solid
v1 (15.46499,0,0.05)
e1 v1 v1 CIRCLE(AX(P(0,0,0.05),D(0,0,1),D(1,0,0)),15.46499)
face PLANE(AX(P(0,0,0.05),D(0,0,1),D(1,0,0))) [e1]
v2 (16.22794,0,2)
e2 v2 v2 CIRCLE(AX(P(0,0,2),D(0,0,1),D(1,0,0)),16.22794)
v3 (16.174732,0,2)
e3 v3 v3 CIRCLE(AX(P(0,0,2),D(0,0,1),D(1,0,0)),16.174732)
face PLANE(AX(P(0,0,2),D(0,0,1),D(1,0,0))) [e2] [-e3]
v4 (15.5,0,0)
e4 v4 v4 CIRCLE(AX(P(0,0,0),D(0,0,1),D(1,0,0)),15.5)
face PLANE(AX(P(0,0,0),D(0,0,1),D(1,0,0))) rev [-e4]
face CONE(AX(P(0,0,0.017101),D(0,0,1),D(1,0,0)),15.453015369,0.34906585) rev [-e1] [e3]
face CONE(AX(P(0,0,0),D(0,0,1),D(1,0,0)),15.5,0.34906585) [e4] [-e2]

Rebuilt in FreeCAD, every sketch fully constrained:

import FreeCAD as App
import Part
import Sketcher
from FreeCAD import Vector


def faces_at(feature, points):
    """Names of the faces that lie closest to the given points."""
    faces = feature.Shape.Faces
    near = lambda p: min(range(len(faces)), key=lambda i: faces[i].distToShape(Part.Vertex(*p))[0])
    return sorted({f"Face{near(p) + 1}" for p in points})

doc = App.newDocument("Part")
body = doc.addObject("PartDesign::Body", "Body")

# Sketch on XY plane
sketch1 = body.newObject("Sketcher::SketchObject", "Sketch")
sketch1.AttachmentSupport = (doc.getObject("XY_Plane"), [""])
sketch1.MapMode = "FlatFace"
sketch1.addGeometry(Part.Circle(Vector(0, 0, 0), Vector(0, 0, 1), 15.5), False)
sketch1.addConstraint(Sketcher.Constraint("Coincident", 0, 3, -1, 1))
sketch1.addConstraint(Sketcher.Constraint("Diameter", 0, 31.0))
pad1 = body.newObject("PartDesign::Pad", "Pad")
pad1.Profile = sketch1
pad1.Length = 2
doc.recompute()

draft = body.newObject("PartDesign::Draft", "Draft")
draft.Base = (pad1, faces_at(pad1, [(-15.5, 0, 1)]))
draft.NeutralPlane = (doc.getObject("XY_Plane"), [""])
draft.Angle = 20
draft.Reversed = True
doc.recompute()

thickness = body.newObject("PartDesign::Thickness", "Thickness")
thickness.Base = (draft, faces_at(draft, [(0, 0, 2)]))
thickness.Value = 0.05
thickness.Reversed = True
thickness.Join = "Intersection"

doc.recompute()
